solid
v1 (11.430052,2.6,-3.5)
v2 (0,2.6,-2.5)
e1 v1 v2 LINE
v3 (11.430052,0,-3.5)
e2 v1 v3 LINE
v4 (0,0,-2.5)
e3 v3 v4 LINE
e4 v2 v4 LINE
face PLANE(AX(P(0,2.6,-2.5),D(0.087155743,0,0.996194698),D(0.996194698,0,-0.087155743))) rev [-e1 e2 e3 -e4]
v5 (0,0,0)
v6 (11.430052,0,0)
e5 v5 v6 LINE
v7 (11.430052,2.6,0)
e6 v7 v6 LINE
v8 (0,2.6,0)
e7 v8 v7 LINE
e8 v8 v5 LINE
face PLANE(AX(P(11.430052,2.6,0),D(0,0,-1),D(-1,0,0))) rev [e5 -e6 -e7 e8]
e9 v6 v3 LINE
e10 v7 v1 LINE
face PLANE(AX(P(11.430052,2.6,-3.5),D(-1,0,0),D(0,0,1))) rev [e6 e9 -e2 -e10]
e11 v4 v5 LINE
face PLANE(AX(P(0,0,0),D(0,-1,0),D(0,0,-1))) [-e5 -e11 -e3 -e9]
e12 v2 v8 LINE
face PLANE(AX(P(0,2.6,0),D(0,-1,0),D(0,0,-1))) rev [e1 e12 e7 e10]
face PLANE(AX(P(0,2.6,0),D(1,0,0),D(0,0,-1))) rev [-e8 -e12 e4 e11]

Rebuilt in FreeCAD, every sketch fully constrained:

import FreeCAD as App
import Part
import Sketcher
Q = App.Units.Quantity


def add_polygon(sketch, points):
    """Adds a closed chain of lines whose ends are joined by coincident constraints."""
    first, n = sketch.GeometryCount, len(points)
    for a, b in zip(points, points[1:] + points[:1]):
        sketch.addGeometry(Part.LineSegment(App.Vector(*a, 0), App.Vector(*b, 0)), False)
    for i in range(n):
        sketch.addConstraint(Sketcher.Constraint("Coincident", first + i, 2, first + (i + 1) % n, 1))

doc = App.newDocument("Part")
body = doc.addObject("PartDesign::Body", "Body")

# Sketch on XZ plane
sketch1 = doc.addObject("Sketcher::SketchObject", "Sketch")
body.addObject(sketch1)
sketch1.AttachmentSupport = (doc.XZ_Plane, [""])
sketch1.MapMode = "FlatFace"
add_polygon(sketch1, [(0, -2.5), (0, 0), (11.4, 0), (11.4, -3.5)])  # lines 0-3
sketch1.addConstraint(Sketcher.Constraint("Vertical", 0))
sketch1.addConstraint(Sketcher.Constraint("Horizontal", 1))
sketch1.addConstraint(Sketcher.Constraint("Vertical", 2))
sketch1.addConstraint(Sketcher.Constraint("Coincident", 0, 2, -1, 1))
sketch1.addConstraint(Sketcher.Constraint("Angle", 3, Q("175 deg")))
sketch1.addConstraint(Sketcher.Constraint("DistanceY", 0, 1, 0, 2, 2.5))
sketch1.addConstraint(Sketcher.Constraint("DistanceY", 2, 2, 2, 1, 3.5))
pad1 = doc.addObject("PartDesign::Pad", "Pad")
body.addObject(pad1)
pad1.Profile = sketch1
pad1.Length = 2.6
pad1.Reversed = True

doc.recompute()
